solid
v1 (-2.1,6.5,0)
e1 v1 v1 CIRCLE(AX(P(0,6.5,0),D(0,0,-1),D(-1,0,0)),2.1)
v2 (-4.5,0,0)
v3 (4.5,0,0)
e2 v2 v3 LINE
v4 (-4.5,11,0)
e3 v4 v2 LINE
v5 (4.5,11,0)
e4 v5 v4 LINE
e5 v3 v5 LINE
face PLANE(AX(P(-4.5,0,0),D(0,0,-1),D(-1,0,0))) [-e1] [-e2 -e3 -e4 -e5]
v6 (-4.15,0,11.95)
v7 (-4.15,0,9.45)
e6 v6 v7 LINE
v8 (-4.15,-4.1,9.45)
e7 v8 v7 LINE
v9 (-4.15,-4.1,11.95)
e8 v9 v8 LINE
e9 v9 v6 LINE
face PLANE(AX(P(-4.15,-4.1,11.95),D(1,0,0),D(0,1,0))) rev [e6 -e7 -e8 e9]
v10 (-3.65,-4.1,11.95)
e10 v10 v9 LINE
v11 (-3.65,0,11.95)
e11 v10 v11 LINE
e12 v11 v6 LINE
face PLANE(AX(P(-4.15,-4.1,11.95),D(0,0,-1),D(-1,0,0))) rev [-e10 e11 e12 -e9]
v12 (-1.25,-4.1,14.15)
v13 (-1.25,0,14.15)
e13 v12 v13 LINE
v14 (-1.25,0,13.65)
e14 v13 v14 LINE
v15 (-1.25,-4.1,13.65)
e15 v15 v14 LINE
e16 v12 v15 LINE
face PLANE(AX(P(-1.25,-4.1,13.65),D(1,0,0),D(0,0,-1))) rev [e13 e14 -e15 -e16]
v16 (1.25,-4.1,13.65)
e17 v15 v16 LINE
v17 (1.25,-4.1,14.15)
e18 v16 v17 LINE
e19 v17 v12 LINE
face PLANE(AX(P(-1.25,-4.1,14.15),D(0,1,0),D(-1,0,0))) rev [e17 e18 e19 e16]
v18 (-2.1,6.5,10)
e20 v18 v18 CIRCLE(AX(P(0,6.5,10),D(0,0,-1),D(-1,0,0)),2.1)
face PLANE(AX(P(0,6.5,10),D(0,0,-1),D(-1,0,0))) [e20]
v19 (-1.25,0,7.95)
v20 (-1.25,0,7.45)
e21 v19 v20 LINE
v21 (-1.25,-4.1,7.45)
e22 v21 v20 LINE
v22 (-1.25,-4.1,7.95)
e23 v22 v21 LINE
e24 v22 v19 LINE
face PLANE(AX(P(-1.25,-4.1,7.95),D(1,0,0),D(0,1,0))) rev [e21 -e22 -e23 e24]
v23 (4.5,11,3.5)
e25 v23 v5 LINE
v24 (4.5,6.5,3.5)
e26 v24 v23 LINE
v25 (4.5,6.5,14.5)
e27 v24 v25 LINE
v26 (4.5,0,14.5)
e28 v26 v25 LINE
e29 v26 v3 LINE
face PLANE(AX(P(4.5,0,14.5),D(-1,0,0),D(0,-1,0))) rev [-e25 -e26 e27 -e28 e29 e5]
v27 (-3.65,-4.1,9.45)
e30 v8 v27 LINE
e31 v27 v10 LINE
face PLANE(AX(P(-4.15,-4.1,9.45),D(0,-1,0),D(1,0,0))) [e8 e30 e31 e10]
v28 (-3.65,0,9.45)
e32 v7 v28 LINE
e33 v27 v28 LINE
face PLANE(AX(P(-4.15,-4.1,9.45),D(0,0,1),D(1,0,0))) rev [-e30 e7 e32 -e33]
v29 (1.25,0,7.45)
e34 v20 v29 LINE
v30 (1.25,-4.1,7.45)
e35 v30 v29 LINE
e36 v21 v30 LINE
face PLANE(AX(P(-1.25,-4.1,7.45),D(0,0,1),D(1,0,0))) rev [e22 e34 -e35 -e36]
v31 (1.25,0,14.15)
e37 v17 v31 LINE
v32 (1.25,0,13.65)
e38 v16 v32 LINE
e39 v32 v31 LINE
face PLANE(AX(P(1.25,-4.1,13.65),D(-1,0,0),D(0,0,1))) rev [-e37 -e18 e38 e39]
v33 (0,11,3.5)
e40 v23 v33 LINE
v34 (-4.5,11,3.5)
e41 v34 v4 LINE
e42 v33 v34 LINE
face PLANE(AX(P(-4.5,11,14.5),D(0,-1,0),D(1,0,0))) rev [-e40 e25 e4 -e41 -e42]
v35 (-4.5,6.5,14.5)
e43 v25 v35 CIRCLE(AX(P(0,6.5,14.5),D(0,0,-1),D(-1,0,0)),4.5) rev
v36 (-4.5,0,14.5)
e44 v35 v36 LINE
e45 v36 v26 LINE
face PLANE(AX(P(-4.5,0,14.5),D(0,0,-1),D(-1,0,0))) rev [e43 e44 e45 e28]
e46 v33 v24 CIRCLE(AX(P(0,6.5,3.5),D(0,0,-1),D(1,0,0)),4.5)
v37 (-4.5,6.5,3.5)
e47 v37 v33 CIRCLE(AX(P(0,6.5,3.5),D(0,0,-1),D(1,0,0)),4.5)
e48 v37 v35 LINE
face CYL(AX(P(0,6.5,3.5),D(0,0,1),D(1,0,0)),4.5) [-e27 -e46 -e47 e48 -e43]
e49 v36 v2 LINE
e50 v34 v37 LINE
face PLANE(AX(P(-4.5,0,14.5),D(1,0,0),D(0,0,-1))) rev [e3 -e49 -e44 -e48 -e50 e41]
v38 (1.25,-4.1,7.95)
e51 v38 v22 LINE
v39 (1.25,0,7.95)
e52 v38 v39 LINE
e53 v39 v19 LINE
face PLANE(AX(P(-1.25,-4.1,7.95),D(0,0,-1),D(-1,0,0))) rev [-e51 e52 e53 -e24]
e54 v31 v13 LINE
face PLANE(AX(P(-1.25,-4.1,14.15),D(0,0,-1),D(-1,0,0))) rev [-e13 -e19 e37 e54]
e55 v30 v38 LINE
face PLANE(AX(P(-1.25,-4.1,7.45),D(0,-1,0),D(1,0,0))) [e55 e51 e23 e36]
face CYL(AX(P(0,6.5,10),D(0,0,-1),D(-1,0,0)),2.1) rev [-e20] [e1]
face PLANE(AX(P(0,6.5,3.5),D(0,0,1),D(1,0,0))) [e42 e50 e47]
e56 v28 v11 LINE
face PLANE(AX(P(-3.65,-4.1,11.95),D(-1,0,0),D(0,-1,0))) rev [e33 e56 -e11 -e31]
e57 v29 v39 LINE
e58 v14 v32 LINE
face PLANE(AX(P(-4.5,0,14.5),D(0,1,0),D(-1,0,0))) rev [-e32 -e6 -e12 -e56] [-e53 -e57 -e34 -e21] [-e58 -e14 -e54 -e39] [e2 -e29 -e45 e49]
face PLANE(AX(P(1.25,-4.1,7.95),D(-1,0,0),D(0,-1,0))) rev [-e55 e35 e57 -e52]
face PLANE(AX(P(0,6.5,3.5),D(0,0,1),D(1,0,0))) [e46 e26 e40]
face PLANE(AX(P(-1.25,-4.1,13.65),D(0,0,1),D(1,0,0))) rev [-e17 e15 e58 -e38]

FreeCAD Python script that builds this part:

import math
import FreeCAD as App
import Part
import Sketcher
from FreeCAD import Vector


def add_polygon(sketch, points):
    """Adds a closed chain of lines whose ends are joined by coincident constraints."""
    first, n = sketch.GeometryCount, len(points)
    for a, b in zip(points, points[1:] + points[:1]):
        sketch.addGeometry(Part.LineSegment(App.Vector(*a, 0), App.Vector(*b, 0)), False)
    for i in range(n):
        sketch.addConstraint(Sketcher.Constraint("Coincident", first + i, 2, first + (i + 1) % n, 1))

doc = App.newDocument("Part")
body = doc.addObject("PartDesign::Body", "Body")

sketch1 = body.newObject("Sketcher::SketchObject", "Sketch")
sketch1.AttachmentSupport = (doc.getObject("XY_Plane"), [""])
sketch1.MapMode = "FlatFace"
add_polygon(sketch1, [(-4, 11), (-4, 0), (4, 0), (4, 11)])
sketch1.addConstraint([
    Sketcher.Constraint("Vertical", 0),
    Sketcher.Constraint("Horizontal", 1),
    Sketcher.Constraint("Vertical", 2),
    Sketcher.Constraint("Horizontal", 3),
    Sketcher.Constraint("Symmetric", 0, 2, 1, 2, -1, 1),
    Sketcher.Constraint("DistanceX", 1, 1, 1, 2, 9.0),
    Sketcher.Constraint("DistanceY", 0, 2, 0, 1, 11.0),
])
pad1 = body.newObject("PartDesign::Pad", "Pad")
pad1.Profile = sketch1
pad1.Length = 14.5

sketch2 = body.newObject("Sketcher::SketchObject", "Sketch001")
sketch2.AttachmentSupport = (doc.getObject("XZ_Plane"), [""])
sketch2.MapMode = "FlatFace"
add_polygon(sketch2, [(-1.2, 14.2), (-1.2, 13.7), (1.2, 13.7), (1.2, 14.2)])
add_polygon(sketch2, [(-1.2, 8), (-1.2, 7.5), (1.2, 7.5), (1.2, 8)])
add_polygon(sketch2, [(-4.2, 11.9), (-4.2, 9.4), (-3.6, 9.4), (-3.6, 11.9)])
sketch2.addConstraint([
    Sketcher.Constraint("Vertical", 0),
    Sketcher.Constraint("Horizontal", 1),
    Sketcher.Constraint("Vertical", 2),
    Sketcher.Constraint("Horizontal", 3),
    Sketcher.Constraint("Vertical", 4),
    Sketcher.Constraint("Horizontal", 5),
    Sketcher.Constraint("Vertical", 6),
    Sketcher.Constraint("Horizontal", 7),
    Sketcher.Constraint("Vertical", 8),
    Sketcher.Constraint("Horizontal", 9),
    Sketcher.Constraint("Vertical", 10),
    Sketcher.Constraint("Horizontal", 11),
    Sketcher.Constraint("Vertical", 3, 2, 4, 2),
    Sketcher.Constraint("Vertical", 2, 2, 5, 2),
    Sketcher.Constraint("Equal", 11, 0),
    Sketcher.Constraint("Equal", 2, 4),
    Sketcher.Constraint("Equal", 7, 8),
    Sketcher.Constraint("DistanceX", 1, 1, 1, 2, 2.5),
    Sketcher.Constraint("DistanceX", 9, 1, 9, 2, 0.5),
    Sketcher.Constraint("DistanceY", 4, 2, 8, 2, 2.0),
    Sketcher.Constraint("DistanceY", 4, 2, 0, 2, 6.2),
    Sketcher.Constraint("DistanceX", 8, 2, 7, 2, 2.9),
    Sketcher.Constraint("DistanceX", 0, 2, -1, 1, 1.25),
    Sketcher.Constraint("DistanceY", -1, 1, 0, 2, 13.65),
])
pad2 = body.newObject("PartDesign::Pad", "Pad001")
pad2.Profile = sketch2
pad2.Length = 4.1

sketch3 = body.newObject("Sketcher::SketchObject", "Sketch002")
sketch3.AttachmentSupport = (doc.getObject("XY_Plane"), [""])
sketch3.MapMode = "FlatFace"
sketch3.AttachmentOffset = App.Placement(Vector(0, 0, 14.5), App.Rotation())
sketch3.addGeometry([
    Part.LineSegment(Vector(4.5, 6.5, 0), Vector(5.9, 6.5, 0)),
    Part.LineSegment(Vector(5.9, 6.5, 0), Vector(5.9, 12.2, 0)),
    Part.LineSegment(Vector(5.9, 12.2, 0), Vector(-5.3, 12.2, 0)),
    Part.LineSegment(Vector(-5.3, 12.2, 0), Vector(-5.3, 6.5, 0)),
    Part.LineSegment(Vector(-5.3, 6.5, 0), Vector(-4.5, 6.5, 0)),
    Part.ArcOfCircle(Part.Circle(Vector(0, 6.5, 0), Vector(0, 0, 1), 4.5), math.radians(0), math.radians(180)),
], False)
sketch3.addConstraint([
    Sketcher.Constraint("Coincident", 0, 2, 1, 1),
    Sketcher.Constraint("Coincident", 1, 2, 2, 1),
    Sketcher.Constraint("Coincident", 2, 2, 3, 1),
    Sketcher.Constraint("Coincident", 3, 2, 4, 1),
    Sketcher.Constraint("Coincident", 4, 2, 5, 2),
    Sketcher.Constraint("Coincident", 5, 1, 0, 1),
    Sketcher.Constraint("Horizontal", 0),
    Sketcher.Constraint("Vertical", 1),
    Sketcher.Constraint("Horizontal", 2),
    Sketcher.Constraint("Vertical", 3),
    Sketcher.Constraint("Horizontal", 4),
    Sketcher.Constraint("Symmetric", 4, 2, 5, 1, -2),
    Sketcher.Constraint("Horizontal", 5, 3, 0, 2),
    Sketcher.Constraint("Radius", 5, 4.5),
    Sketcher.Constraint("DistanceY", -1, 1, 5, 3, 6.5),
    Sketcher.Constraint("DistanceX", 4, 1, 4, 2, 0.781402),
    Sketcher.Constraint("DistanceY", 1, 1, 1, 2, 5.670721),
    Sketcher.Constraint("DistanceX", 0, 1, 0, 2, 1.415925),
])
pocket1 = body.newObject("PartDesign::Pocket", "Pocket")
pocket1.Profile = sketch3
pocket1.Length = 11

sketch4 = body.newObject("Sketcher::SketchObject", "Sketch003")
sketch4.AttachmentSupport = (doc.getObject("XY_Plane"), [""])
sketch4.MapMode = "FlatFace"
sketch4.addGeometry(Part.Circle(Vector(0, 6.5, 0), Vector(0, 0, 1), 2.1), False)
sketch4.addConstraint([
    Sketcher.Constraint("PointOnObject", 0, 3, -2),
    Sketcher.Constraint("Diameter", 0, 4.2),
    Sketcher.Constraint("DistanceY", -1, 1, 0, 3, 6.5),
])
pocket2 = body.newObject("PartDesign::Pocket", "Pocket001")
pocket2.Profile = sketch4
pocket2.Length = 10
pocket2.Reversed = True

doc.recompute()
